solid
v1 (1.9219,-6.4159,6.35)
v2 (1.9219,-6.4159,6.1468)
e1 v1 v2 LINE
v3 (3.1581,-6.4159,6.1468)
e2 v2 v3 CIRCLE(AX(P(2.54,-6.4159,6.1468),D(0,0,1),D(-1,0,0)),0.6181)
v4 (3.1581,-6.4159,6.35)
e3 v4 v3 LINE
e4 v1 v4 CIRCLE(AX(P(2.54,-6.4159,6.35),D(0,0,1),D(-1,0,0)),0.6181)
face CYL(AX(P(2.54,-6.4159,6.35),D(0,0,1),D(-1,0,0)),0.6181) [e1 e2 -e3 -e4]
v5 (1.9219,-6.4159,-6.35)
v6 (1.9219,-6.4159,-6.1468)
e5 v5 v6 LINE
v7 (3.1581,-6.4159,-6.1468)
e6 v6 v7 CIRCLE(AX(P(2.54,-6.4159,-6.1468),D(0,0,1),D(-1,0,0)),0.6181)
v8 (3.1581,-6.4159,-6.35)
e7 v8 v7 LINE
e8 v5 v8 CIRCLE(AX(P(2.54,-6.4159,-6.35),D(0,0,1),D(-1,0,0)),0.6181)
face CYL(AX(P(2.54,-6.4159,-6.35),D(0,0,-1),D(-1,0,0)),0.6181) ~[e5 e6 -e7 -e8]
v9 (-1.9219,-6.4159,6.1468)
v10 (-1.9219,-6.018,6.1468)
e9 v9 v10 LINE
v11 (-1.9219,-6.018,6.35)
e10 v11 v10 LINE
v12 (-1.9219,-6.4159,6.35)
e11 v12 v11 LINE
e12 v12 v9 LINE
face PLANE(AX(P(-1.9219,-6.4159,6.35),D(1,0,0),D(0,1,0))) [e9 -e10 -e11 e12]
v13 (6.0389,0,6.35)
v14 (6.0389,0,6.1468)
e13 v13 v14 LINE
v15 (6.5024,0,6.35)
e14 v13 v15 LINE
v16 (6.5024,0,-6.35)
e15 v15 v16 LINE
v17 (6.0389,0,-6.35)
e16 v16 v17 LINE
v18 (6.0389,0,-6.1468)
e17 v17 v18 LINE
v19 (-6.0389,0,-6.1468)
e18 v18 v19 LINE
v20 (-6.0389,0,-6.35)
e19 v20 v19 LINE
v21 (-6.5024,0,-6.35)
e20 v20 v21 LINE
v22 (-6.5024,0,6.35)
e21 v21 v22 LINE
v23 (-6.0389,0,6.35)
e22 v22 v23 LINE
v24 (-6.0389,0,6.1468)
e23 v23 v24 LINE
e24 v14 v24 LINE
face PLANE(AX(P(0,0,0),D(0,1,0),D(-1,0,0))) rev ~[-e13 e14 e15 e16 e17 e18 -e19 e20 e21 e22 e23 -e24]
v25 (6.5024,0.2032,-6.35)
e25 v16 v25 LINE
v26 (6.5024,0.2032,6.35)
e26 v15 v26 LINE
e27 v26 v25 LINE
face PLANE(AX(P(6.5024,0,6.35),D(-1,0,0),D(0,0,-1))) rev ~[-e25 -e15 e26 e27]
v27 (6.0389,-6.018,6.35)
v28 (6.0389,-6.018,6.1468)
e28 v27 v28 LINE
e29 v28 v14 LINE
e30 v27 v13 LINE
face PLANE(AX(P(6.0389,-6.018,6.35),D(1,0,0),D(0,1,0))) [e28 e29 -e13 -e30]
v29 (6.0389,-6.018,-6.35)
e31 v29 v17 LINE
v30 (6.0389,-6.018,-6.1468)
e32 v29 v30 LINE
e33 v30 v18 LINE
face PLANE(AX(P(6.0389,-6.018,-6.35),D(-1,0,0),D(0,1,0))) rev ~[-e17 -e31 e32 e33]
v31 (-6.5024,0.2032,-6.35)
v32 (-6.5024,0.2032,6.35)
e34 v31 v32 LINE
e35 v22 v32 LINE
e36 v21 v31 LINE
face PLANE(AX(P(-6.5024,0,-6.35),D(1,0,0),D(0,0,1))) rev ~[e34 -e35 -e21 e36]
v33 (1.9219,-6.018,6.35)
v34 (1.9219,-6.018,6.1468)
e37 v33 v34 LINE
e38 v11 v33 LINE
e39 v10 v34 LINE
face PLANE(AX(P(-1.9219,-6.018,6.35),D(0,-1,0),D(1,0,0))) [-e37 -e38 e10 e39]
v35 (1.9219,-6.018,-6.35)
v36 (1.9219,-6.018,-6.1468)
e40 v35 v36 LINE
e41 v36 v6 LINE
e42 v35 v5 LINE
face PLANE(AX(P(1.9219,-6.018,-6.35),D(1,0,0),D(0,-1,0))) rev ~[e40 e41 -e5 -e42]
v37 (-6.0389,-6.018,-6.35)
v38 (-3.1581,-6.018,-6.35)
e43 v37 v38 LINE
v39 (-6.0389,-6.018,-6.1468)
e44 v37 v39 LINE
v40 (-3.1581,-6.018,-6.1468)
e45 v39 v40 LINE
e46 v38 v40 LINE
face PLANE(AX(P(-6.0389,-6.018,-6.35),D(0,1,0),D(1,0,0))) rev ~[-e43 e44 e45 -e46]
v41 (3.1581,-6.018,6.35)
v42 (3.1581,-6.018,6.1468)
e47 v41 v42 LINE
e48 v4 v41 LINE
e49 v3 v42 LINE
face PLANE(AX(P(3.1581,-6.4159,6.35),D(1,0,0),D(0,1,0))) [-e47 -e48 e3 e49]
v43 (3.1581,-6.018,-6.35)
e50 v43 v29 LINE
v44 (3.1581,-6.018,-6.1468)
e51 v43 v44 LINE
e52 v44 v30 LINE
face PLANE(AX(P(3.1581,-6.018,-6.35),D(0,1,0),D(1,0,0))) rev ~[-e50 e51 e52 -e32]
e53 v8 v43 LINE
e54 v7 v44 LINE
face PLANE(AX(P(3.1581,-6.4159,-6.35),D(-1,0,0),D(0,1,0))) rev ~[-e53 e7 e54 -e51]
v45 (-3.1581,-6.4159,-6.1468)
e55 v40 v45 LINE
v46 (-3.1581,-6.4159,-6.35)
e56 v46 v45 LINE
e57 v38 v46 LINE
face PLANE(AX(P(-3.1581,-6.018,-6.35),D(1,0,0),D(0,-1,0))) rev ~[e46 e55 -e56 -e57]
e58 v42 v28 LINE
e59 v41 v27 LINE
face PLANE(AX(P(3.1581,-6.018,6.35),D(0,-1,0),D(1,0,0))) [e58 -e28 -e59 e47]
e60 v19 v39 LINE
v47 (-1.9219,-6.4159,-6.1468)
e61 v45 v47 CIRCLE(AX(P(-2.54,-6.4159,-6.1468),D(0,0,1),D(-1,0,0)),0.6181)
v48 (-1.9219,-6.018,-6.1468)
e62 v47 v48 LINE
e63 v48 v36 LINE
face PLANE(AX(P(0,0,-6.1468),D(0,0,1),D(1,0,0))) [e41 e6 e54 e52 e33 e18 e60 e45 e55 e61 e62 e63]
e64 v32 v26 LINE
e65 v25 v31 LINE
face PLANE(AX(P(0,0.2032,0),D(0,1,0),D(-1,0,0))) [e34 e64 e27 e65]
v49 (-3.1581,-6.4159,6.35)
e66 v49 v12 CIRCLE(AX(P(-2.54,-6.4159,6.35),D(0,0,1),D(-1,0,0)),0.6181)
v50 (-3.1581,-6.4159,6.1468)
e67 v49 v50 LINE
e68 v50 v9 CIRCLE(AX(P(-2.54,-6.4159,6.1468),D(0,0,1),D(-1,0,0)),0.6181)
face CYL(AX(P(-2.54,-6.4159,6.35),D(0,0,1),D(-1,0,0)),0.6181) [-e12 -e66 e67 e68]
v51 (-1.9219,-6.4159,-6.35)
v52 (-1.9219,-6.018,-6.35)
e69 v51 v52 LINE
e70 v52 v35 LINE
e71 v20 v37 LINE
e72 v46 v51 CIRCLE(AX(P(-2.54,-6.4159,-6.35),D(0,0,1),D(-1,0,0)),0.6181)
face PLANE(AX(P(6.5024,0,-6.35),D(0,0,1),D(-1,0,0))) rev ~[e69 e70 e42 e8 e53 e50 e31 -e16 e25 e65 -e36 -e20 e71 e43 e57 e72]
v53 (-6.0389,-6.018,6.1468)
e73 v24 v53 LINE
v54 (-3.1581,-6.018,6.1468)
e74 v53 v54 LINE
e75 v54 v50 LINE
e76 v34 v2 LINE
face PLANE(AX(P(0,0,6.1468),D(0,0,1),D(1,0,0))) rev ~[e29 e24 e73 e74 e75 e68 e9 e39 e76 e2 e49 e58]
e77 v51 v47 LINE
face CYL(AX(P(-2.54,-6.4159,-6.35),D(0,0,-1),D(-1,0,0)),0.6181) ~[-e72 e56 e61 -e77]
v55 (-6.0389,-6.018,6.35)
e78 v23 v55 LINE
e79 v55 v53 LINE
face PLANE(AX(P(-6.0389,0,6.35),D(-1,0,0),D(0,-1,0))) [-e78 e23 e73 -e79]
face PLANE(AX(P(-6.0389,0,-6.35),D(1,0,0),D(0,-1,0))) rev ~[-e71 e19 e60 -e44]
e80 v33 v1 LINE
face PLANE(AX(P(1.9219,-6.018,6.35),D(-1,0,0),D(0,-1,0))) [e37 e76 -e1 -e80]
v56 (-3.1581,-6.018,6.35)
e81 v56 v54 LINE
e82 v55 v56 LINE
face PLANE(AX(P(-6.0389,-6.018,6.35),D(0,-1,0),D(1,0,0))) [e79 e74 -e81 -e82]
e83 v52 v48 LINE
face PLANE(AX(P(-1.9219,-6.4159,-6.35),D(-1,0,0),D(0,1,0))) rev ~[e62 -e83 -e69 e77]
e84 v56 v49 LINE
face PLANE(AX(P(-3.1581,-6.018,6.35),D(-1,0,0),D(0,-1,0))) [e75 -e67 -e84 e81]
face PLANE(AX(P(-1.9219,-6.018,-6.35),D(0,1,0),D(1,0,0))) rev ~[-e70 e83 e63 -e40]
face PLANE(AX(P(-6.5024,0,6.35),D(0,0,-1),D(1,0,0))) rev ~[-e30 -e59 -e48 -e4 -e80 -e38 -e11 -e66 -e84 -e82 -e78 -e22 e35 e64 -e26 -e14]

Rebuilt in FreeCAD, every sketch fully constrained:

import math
import FreeCAD as App
import Part
import Sketcher

V = App.Vector
Q = App.Units.Quantity

doc = App.newDocument("Part")
body = doc.addObject("PartDesign::Body", "Body")

# Sketch on XZ plane
sketch1 = body.newObject("Sketcher::SketchObject", "Sketch")
sketch1.AttachmentSupport = (doc.getObject("XZ_Plane"), [""])
sketch1.MapMode = "FlatFace"
sketch1.addGeometry([
    Part.LineSegment(V(-6.5024, -6.35, 0), V(-6.5024, 6.35, 0)),
    Part.LineSegment(V(-6.5024, 6.35, 0), V(6.5024, 6.35, 0)),
    Part.LineSegment(V(6.5024, 6.35, 0), V(6.5024, -6.35, 0)),
    Part.LineSegment(V(6.5024, -6.35, 0), V(-6.5024, -6.35, 0)),
], False)
sketch1.addConstraint([
    Sketcher.Constraint("Coincident", 0, 2, 1, 1),
    Sketcher.Constraint("Coincident", 1, 2, 2, 1),
    Sketcher.Constraint("Coincident", 2, 2, 3, 1),
    Sketcher.Constraint("Coincident", 3, 2, 0, 1),
    Sketcher.Constraint("Vertical", 0),
    Sketcher.Constraint("Horizontal", 1),
    Sketcher.Constraint("Vertical", 2),
    Sketcher.Constraint("Horizontal", 3),
    Sketcher.Constraint("Symmetric", 0, 2, 2, 2, -1, 1),
    Sketcher.Constraint("DistanceY", 0, 1, 0, 2, Q("0.5 in")),
    Sketcher.Constraint("DistanceX", 1, 1, 1, 2, Q("0.512 in")),
])
pad1 = body.newObject("PartDesign::Pad", "Pad")
pad1.Profile = sketch1
pad1.Length = Q("0.008 in")
pad1.Reversed = True

# Sketch on XY plane
sketch2 = body.newObject("Sketcher::SketchObject", "Sketch001")
sketch2.AttachmentSupport = (doc.getObject("XY_Plane"), [""])
sketch2.MapMode = "FlatFace"
sketch2.AttachmentOffset = App.Placement(V(0, 0, -0.25 * 25.4), App.Rotation())
sketch2.addGeometry([
    Part.LineSegment(V(-6.0389, 0, 0), V(-6.0389, -6.018, 0)),  # 0
    Part.LineSegment(V(-6.0389, -6.018, 0), V(-3.1581, -6.018, 0)),  # 1
    Part.LineSegment(V(-3.1581, -6.018, 0), V(-3.1581, -6.4159, 0)),  # 2
    Part.ArcOfCircle(Part.Circle(V(-2.54, -6.4159, 0), V(0, 0, 1), 0.6181), math.radians(180), math.radians(360)),  # 3
    Part.LineSegment(V(-1.9219, -6.4159, 0), V(-1.9219, -6.018, 0)),  # 4
    Part.LineSegment(V(-1.9219, -6.018, 0), V(1.9219, -6.018, 0)),  # 5
    Part.LineSegment(V(1.9219, -6.018, 0), V(1.9219, -6.4159, 0)),  # 6
    Part.ArcOfCircle(Part.Circle(V(2.54, -6.4159, 0), V(0, 0, 1), 0.6181), math.radians(180), math.radians(360)),  # 7
    Part.LineSegment(V(3.1581, -6.4159, 0), V(3.1581, -6.018, 0)),  # 8
    Part.LineSegment(V(3.1581, -6.018, 0), V(6.0389, -6.018, 0)),  # 9
    Part.LineSegment(V(6.0389, -6.018, 0), V(6.0389, 0, 0)),  # 10
    Part.LineSegment(V(6.0389, 0, 0), V(-6.0389, 0, 0)),  # 11
], False)
sketch2.addConstraint([
    Sketcher.Constraint("Coincident", 0, 2, 1, 1),
    Sketcher.Constraint("Coincident", 1, 2, 2, 1),
    Sketcher.Constraint("Tangent", 2, 2, 3, 1),
    Sketcher.Constraint("Tangent", 3, 2, 4, 1),
    Sketcher.Constraint("Coincident", 4, 2, 5, 1),
    Sketcher.Constraint("Coincident", 5, 2, 6, 1),
    Sketcher.Constraint("Tangent", 6, 2, 7, 1),
    Sketcher.Constraint("Tangent", 7, 2, 8, 1),
    Sketcher.Constraint("Coincident", 8, 2, 9, 1),
    Sketcher.Constraint("Coincident", 9, 2, 10, 1),
    Sketcher.Constraint("Coincident", 10, 2, 11, 1),
    Sketcher.Constraint("Coincident", 11, 2, 0, 1),
    Sketcher.Constraint("Vertical", 0),
    Sketcher.Constraint("Horizontal", 1),
    Sketcher.Constraint("Vertical", 2),
    Sketcher.Constraint("Vertical", 4),
    Sketcher.Constraint("Horizontal", 5),
    Sketcher.Constraint("Vertical", 6),
    Sketcher.Constraint("Vertical", 8),
    Sketcher.Constraint("Horizontal", 9),
    Sketcher.Constraint("Vertical", 10),
    Sketcher.Constraint("Horizontal", 11),
    Sketcher.Constraint("Equal", 3, 7),
    Sketcher.Constraint("Symmetric", 10, 2, 11, 2, -1, 1),
    Sketcher.Constraint("Symmetric", 3, 3, 7, 3, -2),
    Sketcher.Constraint("Horizontal", 1, 2, 4, 2),
    Sketcher.Constraint("Horizontal", 5, 2, 8, 2),
    Sketcher.Constraint("DistanceX", 3, 3, -1, 1, Q("0.1 in")),
    Sketcher.Constraint("Radius", 3, Q("0.618 mm")),
    Sketcher.Constraint("DistanceX", 11, 2, 11, 1, Q("0.4755 in")),
    Sketcher.Constraint("DistanceY", 0, 2, 0, 1, Q("6.018 mm")),
    Sketcher.Constraint("DistanceY", 2, 2, 2, 1, Q("0.398 mm")),
])
pad2 = body.newObject("PartDesign::Pad", "Pad001")
pad2.Profile = sketch2
pad2.Length = Q("0.008 in")

# Sketch on XY plane
sketch3 = body.newObject("Sketcher::SketchObject", "Sketch002")
sketch3.AttachmentSupport = (doc.getObject("XY_Plane"), [""])
sketch3.MapMode = "FlatFace"
sketch3.AttachmentOffset = App.Placement(V(0, 0, 0.25 * 25.4), App.Rotation())
sketch3.addGeometry([
    Part.LineSegment(V(-6.0389, 0, 0), V(-6.0389, -6.018, 0)),  # 0
    Part.LineSegment(V(-6.0389, -6.018, 0), V(-3.1581, -6.018, 0)),  # 1
    Part.LineSegment(V(-3.1581, -6.018, 0), V(-3.1581, -6.4159, 0)),  # 2
    Part.ArcOfCircle(Part.Circle(V(-2.54, -6.4159, 0), V(0, 0, 1), 0.6181), math.radians(180), math.radians(360)),  # 3
    Part.LineSegment(V(-1.9219, -6.4159, 0), V(-1.9219, -6.018, 0)),  # 4
    Part.LineSegment(V(-1.9219, -6.018, 0), V(1.9219, -6.018, 0)),  # 5
    Part.LineSegment(V(1.9219, -6.018, 0), V(1.9219, -6.4159, 0)),  # 6
    Part.ArcOfCircle(Part.Circle(V(2.54, -6.4159, 0), V(0, 0, 1), 0.6181), math.radians(180), math.radians(360)),  # 7
    Part.LineSegment(V(3.1581, -6.4159, 0), V(3.1581, -6.018, 0)),  # 8
    Part.LineSegment(V(3.1581, -6.018, 0), V(6.0389, -6.018, 0)),  # 9
    Part.LineSegment(V(6.0389, -6.018, 0), V(6.0389, 0, 0)),  # 10
    Part.LineSegment(V(6.0389, 0, 0), V(-6.0389, 0, 0)),  # 11
], False)
sketch3.addConstraint([
    Sketcher.Constraint("Coincident", 0, 2, 1, 1),
    Sketcher.Constraint("Coincident", 1, 2, 2, 1),
    Sketcher.Constraint("Tangent", 2, 2, 3, 1),
    Sketcher.Constraint("Tangent", 3, 2, 4, 1),
    Sketcher.Constraint("Coincident", 4, 2, 5, 1),
    Sketcher.Constraint("Coincident", 5, 2, 6, 1),
    Sketcher.Constraint("Tangent", 6, 2, 7, 1),
    Sketcher.Constraint("Tangent", 7, 2, 8, 1),
    Sketcher.Constraint("Coincident", 8, 2, 9, 1),
    Sketcher.Constraint("Coincident", 9, 2, 10, 1),
    Sketcher.Constraint("Coincident", 10, 2, 11, 1),
    Sketcher.Constraint("Coincident", 11, 2, 0, 1),
    Sketcher.Constraint("Vertical", 0),
    Sketcher.Constraint("Horizontal", 1),
    Sketcher.Constraint("Vertical", 2),
    Sketcher.Constraint("Vertical", 4),
    Sketcher.Constraint("Horizontal", 5),
    Sketcher.Constraint("Vertical", 6),
    Sketcher.Constraint("Vertical", 8),
    Sketcher.Constraint("Horizontal", 9),
    Sketcher.Constraint("Vertical", 10),
    Sketcher.Constraint("Horizontal", 11),
    Sketcher.Constraint("Equal", 3, 7),
    Sketcher.Constraint("Symmetric", 10, 2, 11, 2, -1, 1),
    Sketcher.Constraint("Symmetric", 3, 3, 7, 3, -2),
    Sketcher.Constraint("Horizontal", 1, 2, 4, 2),
    Sketcher.Constraint("Horizontal", 5, 2, 8, 2),
    Sketcher.Constraint("DistanceX", 3, 3, -1, 1, Q("0.1 in")),
    Sketcher.Constraint("Radius", 3, Q("0.618 mm")),
    Sketcher.Constraint("DistanceX", 11, 2, 11, 1, Q("0.4755 in")),
    Sketcher.Constraint("DistanceY", 0, 2, 0, 1, Q("6.018 mm")),
    Sketcher.Constraint("DistanceY", 2, 2, 2, 1, Q("0.398 mm")),
])
pad3 = body.newObject("PartDesign::Pad", "Pad002")
pad3.Profile = sketch3
pad3.Length = Q("0.008 in")
pad3.Reversed = True

doc.recompute()
